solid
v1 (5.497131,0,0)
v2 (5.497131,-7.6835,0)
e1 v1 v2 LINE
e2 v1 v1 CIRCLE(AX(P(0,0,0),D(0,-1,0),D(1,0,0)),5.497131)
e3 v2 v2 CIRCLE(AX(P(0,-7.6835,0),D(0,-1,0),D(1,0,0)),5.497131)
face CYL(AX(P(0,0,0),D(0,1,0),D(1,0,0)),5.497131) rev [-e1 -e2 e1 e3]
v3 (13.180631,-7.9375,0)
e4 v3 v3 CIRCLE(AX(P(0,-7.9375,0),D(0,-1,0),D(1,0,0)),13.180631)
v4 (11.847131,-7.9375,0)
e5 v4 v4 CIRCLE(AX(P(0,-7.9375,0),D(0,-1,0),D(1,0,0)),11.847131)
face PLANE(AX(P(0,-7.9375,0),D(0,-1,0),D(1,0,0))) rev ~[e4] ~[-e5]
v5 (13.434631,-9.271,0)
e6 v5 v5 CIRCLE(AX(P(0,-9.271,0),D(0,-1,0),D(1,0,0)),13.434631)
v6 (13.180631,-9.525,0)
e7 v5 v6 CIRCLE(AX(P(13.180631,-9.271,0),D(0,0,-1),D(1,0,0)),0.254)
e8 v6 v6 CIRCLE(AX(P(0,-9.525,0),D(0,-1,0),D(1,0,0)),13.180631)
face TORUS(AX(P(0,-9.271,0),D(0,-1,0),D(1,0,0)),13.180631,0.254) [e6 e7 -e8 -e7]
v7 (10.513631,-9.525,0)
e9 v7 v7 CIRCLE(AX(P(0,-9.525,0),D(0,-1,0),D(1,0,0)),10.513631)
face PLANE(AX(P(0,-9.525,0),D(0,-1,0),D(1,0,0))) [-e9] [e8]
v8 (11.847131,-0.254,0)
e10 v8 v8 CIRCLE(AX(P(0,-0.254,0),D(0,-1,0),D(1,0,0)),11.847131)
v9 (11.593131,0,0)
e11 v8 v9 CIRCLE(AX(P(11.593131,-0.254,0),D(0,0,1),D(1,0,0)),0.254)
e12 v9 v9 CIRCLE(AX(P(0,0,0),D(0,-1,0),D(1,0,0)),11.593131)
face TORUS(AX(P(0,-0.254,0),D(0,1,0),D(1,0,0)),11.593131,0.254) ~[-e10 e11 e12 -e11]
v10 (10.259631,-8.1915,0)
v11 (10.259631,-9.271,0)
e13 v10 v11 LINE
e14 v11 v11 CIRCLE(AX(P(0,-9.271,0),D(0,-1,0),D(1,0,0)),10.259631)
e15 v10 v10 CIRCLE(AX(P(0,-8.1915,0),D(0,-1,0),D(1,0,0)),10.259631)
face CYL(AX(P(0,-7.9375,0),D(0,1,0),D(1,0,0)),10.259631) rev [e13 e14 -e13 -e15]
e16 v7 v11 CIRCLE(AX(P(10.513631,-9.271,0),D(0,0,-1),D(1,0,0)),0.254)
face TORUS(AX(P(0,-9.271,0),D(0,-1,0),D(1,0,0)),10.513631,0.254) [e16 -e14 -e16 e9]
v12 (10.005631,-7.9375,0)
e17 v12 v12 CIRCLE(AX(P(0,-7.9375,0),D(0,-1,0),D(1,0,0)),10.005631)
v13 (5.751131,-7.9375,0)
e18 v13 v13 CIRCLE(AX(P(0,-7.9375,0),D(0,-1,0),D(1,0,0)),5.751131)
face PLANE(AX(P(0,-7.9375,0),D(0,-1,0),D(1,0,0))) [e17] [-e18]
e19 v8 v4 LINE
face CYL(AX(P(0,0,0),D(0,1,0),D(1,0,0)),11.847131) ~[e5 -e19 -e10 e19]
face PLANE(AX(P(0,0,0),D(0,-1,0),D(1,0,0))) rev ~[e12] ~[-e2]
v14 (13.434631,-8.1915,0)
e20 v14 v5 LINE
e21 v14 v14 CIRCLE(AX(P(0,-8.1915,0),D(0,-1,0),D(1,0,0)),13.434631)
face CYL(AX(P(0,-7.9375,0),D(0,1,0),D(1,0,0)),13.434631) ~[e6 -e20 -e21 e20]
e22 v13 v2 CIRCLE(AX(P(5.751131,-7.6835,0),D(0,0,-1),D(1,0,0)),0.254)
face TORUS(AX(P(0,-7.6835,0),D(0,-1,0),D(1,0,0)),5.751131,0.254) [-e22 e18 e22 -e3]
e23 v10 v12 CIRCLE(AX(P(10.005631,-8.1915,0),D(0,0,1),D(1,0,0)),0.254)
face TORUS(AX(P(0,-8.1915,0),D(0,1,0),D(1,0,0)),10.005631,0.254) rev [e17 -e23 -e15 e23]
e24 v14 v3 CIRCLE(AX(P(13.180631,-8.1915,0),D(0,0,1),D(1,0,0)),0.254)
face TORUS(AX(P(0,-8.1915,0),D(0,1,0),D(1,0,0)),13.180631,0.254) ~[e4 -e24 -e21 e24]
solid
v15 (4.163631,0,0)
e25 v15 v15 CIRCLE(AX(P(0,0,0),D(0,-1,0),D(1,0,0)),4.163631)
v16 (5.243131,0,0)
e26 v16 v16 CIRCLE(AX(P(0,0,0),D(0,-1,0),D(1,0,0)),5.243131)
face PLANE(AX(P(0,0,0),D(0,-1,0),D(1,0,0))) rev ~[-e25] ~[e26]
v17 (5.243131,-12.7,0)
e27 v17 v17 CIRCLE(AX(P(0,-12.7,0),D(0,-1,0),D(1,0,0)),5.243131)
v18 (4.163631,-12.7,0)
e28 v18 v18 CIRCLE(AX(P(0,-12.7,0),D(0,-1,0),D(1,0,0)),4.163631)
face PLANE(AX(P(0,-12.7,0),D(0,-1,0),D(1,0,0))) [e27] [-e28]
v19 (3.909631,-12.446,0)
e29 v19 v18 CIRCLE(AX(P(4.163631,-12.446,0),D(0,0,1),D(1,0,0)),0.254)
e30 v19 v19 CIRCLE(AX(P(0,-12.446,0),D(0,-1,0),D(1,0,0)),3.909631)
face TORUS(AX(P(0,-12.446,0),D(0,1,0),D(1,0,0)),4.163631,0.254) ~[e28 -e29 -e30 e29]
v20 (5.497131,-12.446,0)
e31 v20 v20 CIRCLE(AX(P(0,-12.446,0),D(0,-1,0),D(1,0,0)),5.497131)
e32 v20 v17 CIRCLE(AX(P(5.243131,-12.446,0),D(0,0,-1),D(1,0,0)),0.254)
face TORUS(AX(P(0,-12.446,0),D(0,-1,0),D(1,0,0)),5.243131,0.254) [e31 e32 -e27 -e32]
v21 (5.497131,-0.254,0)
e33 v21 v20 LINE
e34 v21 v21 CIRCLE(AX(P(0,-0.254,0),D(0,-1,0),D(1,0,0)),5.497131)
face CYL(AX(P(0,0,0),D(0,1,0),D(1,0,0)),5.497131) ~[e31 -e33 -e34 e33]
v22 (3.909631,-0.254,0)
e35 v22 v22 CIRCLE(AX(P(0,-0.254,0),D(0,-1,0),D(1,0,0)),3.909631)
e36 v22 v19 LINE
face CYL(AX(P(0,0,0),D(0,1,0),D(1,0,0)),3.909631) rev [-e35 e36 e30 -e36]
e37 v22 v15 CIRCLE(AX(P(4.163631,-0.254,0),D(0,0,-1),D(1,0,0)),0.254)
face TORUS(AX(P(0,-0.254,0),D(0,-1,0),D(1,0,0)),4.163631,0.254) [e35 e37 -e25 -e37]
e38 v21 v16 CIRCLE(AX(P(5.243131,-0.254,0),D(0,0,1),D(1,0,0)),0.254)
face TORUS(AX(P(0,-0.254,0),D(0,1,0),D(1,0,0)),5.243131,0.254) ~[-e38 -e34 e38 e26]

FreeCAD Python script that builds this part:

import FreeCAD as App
import Part
import Sketcher
from FreeCAD import Vector
Q = App.Units.Quantity


def edges_at(feature, points):
    """Names of the edges that pass closest to the given points."""
    edges = feature.Shape.Edges
    near = lambda p: min(range(len(edges)), key=lambda i: edges[i].distToShape(Part.Vertex(*p))[0])
    return sorted({f"Edge{near(p) + 1}" for p in points})

doc = App.newDocument("Part")
body = doc.addObject("PartDesign::Body", "Body")

sketch1 = body.newObject("Sketcher::SketchObject", "Sketch")
sketch1.AttachmentSupport = (doc.getObject("XZ_Plane"), [""])
sketch1.MapMode = "FlatFace"
sketch1.addGeometry(Part.Circle(Vector(0, 0, 0), Vector(0, 0, 1), 5.497131), False)
sketch1.addGeometry(Part.Circle(Vector(0, 0, 0), Vector(0, 0, 1), 3.909631), False)
sketch1.addConstraint(Sketcher.Constraint("Coincident", 0, 3, -1, 1))
sketch1.addConstraint(Sketcher.Constraint("Coincident", 1, 3, -1, 1))
sketch1.addConstraint(Sketcher.Constraint("Diameter", 0, Q("10.994263 mm")))
sketch1.addConstraint(Sketcher.Constraint("Diameter", 1, Q("7.819263 mm")))
pad1 = body.newObject("PartDesign::Pad", "Pad")
pad1.Profile = sketch1
pad1.Length = Q("0.5 in")
doc.recompute()

fillet = body.newObject("PartDesign::Fillet", "Fillet")
fillet.Base = (pad1, edges_at(pad1, [
    (-5.497, -12.7, 0),
    (-3.91, -12.7, 0),
    (-5.497, 0, 0),
    (-3.91, 0, 0),
]))
fillet.Radius = Q("0.01 in")
body2 = doc.addObject("PartDesign::Body", "Body001")

sketch2 = body2.newObject("Sketcher::SketchObject", "Sketch001")
sketch2.AttachmentSupport = (doc.getObject("XZ_Plane001"), [""])
sketch2.MapMode = "FlatFace"
sketch2.addGeometry(Part.Circle(Vector(0, 0, 0), Vector(0, 0, 1), 11.847131), False)
sketch2.addGeometry(Part.Circle(Vector(0, 0, 0), Vector(0, 0, 1), 5.497131), False)
sketch2.addConstraint(Sketcher.Constraint("Coincident", 0, 3, -1, 1))
sketch2.addConstraint(Sketcher.Constraint("Coincident", 1, 3, -1, 1))
sketch2.addConstraint(Sketcher.Constraint("Diameter", 0, Q("23.694263 mm")))
sketch2.addConstraint(Sketcher.Constraint("Diameter", 1, Q("10.994263 mm")))
pad2 = body2.newObject("PartDesign::Pad", "Pad001")
pad2.Profile = sketch2
pad2.Length = Q("0.3125 in")

sketch3 = body2.newObject("Sketcher::SketchObject", "Sketch002")
sketch3.AttachmentSupport = (doc.getObject("XZ_Plane001"), [""])
sketch3.MapMode = "FlatFace"
sketch3.AttachmentOffset = App.Placement(Vector(0, 0, 0.3125 * 25.4), App.Rotation())
sketch3.addGeometry(Part.Circle(Vector(0, 0, 0), Vector(0, 0, 1), 13.434631), False)
sketch3.addGeometry(Part.Circle(Vector(0, 0, 0), Vector(0, 0, 1), 10.259631), False)
sketch3.addConstraint(Sketcher.Constraint("Coincident", 0, 3, -1, 1))
sketch3.addConstraint(Sketcher.Constraint("Coincident", 1, 3, -1, 1))
sketch3.addConstraint(Sketcher.Constraint("Diameter", 0, Q("26.869263 mm")))
sketch3.addConstraint(Sketcher.Constraint("Diameter", 1, Q("20.519263 mm")))
pad3 = body2.newObject("PartDesign::Pad", "Pad002")
pad3.Profile = sketch3
pad3.Length = Q("0.0625 in")
doc.recompute()

fillet2 = body2.newObject("PartDesign::Fillet", "Fillet001")
fillet2.Base = (pad3, edges_at(pad3, [
    (-13.435, -9.525, 0),
    (-13.435, -7.938, 0),
    (-10.26, -9.525, 0),
    (-10.26, -7.938, 0),
    (-5.497, -7.938, 0),
    (-11.847, 0, 0),
]))
fillet2.Radius = Q("0.01 in")

doc.recompute()
